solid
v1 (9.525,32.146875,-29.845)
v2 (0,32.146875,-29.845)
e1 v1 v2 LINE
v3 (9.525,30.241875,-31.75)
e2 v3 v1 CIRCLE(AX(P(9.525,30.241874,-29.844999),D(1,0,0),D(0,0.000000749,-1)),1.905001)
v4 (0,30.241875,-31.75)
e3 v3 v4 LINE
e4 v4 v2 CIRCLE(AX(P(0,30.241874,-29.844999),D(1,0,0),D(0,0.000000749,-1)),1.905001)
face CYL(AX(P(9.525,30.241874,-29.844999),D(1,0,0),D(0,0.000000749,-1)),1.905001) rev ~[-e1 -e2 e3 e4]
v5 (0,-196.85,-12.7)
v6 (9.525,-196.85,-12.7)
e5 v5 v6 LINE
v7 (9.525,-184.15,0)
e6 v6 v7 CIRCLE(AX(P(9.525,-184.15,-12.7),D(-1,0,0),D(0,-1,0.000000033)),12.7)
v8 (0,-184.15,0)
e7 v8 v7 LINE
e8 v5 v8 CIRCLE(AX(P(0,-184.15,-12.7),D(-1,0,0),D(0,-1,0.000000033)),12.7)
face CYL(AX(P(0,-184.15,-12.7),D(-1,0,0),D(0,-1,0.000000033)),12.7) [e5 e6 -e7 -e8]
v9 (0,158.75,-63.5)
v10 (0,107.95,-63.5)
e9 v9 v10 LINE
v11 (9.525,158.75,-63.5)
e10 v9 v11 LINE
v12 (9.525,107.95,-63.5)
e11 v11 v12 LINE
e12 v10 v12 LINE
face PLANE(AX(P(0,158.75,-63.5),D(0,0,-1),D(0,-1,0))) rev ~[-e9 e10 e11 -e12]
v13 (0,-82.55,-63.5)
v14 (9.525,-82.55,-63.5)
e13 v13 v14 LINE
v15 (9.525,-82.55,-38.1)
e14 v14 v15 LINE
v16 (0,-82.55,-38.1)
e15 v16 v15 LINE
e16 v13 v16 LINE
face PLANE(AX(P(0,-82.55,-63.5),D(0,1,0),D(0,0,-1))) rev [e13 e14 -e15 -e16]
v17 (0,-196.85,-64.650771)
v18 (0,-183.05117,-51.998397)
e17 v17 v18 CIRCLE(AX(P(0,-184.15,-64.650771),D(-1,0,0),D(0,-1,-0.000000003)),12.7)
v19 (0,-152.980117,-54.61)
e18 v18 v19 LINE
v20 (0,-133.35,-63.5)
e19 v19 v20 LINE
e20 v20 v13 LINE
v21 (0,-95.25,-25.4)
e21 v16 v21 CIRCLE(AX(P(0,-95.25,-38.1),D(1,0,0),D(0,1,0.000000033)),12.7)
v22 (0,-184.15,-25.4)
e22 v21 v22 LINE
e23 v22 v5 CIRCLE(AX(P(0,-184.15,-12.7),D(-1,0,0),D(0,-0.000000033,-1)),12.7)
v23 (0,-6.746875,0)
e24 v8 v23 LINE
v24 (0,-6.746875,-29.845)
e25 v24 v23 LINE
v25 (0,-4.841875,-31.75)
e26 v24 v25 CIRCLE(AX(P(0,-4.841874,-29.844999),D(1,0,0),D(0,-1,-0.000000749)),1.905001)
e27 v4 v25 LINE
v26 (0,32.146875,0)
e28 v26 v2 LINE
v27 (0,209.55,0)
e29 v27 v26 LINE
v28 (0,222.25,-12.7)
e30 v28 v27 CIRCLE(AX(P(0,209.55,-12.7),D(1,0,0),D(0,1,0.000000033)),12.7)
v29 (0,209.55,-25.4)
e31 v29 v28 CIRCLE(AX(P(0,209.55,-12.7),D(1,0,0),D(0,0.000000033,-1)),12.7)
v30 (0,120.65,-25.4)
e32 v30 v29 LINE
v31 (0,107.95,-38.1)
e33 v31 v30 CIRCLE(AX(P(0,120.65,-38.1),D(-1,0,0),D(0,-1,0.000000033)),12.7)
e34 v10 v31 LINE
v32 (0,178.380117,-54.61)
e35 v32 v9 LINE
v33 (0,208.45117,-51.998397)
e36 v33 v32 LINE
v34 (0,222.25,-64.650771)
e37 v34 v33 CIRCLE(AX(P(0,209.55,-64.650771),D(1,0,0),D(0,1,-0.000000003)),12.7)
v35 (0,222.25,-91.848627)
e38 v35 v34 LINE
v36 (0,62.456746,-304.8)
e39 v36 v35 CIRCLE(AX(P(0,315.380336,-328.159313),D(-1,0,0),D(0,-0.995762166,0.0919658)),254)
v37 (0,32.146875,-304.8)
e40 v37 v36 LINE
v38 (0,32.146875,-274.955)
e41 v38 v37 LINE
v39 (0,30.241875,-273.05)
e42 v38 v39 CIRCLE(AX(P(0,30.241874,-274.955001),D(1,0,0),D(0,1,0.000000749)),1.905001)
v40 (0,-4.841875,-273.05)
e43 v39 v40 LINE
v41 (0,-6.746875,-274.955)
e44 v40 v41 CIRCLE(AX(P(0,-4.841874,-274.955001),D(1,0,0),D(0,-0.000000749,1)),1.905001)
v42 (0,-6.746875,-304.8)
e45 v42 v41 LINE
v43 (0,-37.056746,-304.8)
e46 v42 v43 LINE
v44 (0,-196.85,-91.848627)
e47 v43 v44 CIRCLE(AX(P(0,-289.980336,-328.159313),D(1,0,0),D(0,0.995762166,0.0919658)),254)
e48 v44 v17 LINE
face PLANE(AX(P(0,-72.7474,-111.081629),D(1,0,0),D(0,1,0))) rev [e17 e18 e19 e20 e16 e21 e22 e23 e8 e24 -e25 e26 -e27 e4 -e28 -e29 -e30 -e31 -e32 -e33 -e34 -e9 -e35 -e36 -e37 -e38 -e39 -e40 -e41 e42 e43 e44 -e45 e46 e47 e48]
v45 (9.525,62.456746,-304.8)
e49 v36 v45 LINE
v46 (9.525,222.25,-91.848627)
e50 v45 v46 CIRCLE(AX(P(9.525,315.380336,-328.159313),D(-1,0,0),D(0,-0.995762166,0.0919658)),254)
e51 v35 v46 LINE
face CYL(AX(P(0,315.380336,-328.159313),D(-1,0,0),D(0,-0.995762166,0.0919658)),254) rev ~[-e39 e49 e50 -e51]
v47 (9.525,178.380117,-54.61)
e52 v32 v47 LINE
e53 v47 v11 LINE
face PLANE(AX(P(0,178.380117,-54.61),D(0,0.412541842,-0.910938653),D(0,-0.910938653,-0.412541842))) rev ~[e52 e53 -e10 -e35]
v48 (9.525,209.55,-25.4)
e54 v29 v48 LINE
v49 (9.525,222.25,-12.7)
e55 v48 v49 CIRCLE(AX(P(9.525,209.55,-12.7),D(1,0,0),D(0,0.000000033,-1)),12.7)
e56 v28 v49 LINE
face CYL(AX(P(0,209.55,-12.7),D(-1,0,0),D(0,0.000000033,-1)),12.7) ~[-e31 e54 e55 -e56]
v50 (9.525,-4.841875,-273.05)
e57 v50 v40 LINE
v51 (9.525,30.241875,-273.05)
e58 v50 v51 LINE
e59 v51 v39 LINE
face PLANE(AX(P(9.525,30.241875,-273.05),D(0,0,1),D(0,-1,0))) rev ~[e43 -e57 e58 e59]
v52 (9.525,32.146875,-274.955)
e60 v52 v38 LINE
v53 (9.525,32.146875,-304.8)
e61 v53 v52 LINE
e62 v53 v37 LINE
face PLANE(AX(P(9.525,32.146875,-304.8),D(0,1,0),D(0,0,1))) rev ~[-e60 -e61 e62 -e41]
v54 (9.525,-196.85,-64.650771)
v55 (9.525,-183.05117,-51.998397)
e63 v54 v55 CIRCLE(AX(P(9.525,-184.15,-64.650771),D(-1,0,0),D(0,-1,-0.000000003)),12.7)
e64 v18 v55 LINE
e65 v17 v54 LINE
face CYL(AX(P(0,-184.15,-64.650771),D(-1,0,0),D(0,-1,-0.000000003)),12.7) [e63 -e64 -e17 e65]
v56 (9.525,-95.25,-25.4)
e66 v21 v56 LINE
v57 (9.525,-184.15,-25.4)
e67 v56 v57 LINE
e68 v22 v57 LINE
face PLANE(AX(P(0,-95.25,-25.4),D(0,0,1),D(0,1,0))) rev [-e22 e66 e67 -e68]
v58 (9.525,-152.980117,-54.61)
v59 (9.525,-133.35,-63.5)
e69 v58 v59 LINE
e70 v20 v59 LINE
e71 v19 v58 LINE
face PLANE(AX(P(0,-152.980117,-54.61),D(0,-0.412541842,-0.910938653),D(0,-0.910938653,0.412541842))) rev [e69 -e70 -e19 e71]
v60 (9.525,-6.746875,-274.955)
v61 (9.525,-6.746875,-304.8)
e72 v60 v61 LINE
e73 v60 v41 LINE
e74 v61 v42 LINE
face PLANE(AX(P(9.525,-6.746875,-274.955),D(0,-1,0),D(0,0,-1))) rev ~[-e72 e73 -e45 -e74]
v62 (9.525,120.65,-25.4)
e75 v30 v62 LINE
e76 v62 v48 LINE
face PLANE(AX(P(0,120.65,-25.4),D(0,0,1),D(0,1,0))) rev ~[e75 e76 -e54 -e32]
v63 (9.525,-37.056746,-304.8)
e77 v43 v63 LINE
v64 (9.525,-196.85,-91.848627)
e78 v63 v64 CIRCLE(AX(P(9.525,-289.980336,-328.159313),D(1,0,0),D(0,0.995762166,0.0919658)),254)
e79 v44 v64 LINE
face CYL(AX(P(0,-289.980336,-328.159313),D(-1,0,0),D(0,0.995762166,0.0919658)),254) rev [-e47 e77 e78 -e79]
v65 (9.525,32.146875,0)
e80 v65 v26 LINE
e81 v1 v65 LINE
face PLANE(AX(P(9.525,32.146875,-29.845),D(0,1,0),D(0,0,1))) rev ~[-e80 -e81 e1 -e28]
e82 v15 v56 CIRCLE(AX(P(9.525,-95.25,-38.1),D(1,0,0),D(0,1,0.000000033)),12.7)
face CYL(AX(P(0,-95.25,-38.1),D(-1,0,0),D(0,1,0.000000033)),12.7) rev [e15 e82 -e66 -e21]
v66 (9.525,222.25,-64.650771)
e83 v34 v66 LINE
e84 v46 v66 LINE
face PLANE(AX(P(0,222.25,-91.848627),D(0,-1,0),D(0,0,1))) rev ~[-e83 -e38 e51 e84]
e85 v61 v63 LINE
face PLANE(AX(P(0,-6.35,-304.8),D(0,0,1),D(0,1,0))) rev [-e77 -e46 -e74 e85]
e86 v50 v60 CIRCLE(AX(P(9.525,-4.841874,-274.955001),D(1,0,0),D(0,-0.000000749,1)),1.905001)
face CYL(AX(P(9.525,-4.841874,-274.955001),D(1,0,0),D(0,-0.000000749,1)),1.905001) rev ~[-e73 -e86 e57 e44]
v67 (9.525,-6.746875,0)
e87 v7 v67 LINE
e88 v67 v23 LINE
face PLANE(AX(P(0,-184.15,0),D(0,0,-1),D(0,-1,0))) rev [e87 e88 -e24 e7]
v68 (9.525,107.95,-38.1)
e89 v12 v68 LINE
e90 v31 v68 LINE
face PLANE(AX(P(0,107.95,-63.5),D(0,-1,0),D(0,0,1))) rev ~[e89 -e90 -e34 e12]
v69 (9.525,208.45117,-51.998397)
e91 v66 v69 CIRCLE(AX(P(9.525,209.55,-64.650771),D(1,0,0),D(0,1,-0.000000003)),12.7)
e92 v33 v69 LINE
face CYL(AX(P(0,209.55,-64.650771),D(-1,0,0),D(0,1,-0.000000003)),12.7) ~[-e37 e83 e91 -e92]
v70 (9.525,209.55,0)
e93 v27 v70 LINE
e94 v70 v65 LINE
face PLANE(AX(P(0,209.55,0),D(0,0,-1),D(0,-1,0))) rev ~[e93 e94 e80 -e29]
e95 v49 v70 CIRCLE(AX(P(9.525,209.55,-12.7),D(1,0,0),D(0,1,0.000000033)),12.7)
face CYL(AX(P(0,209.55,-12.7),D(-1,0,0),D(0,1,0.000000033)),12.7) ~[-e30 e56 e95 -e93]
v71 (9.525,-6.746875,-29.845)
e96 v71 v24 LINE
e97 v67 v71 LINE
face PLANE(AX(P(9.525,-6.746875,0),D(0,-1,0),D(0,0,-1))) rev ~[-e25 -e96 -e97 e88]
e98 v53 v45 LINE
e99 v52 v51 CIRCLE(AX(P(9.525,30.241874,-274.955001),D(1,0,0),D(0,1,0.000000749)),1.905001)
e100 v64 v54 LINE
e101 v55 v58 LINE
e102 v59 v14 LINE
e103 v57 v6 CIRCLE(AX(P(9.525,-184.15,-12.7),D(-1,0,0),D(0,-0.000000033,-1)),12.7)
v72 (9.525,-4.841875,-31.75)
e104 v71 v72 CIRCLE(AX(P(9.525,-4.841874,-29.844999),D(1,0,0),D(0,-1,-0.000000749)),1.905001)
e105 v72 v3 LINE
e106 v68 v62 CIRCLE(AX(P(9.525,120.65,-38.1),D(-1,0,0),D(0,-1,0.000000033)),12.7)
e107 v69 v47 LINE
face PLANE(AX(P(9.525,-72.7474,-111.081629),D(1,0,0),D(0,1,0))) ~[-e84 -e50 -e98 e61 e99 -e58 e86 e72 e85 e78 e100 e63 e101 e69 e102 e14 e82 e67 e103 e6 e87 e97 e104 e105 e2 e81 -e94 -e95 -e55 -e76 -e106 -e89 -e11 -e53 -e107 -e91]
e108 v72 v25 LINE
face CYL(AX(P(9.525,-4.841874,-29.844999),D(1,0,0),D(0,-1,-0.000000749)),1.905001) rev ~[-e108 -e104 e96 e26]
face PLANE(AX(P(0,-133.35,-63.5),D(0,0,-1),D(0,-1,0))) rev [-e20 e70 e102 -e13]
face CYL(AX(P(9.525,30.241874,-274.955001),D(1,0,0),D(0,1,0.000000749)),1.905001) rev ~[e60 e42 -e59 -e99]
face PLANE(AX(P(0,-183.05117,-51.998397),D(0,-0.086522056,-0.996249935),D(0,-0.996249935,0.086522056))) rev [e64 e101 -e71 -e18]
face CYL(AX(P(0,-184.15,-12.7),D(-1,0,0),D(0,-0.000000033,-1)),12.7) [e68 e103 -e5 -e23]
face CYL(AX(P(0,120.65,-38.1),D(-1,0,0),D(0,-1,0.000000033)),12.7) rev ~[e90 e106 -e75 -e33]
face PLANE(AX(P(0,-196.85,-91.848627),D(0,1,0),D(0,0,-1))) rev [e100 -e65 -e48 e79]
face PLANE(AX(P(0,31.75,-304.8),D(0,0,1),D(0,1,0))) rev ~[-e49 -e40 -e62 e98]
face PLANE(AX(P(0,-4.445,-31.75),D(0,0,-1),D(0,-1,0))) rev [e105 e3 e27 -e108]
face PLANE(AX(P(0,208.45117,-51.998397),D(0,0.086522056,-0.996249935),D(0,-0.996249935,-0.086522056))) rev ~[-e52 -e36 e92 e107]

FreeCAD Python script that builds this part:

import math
import FreeCAD as App
import Part
import Sketcher
from FreeCAD import Vector
Q = App.Units.Quantity

doc = App.newDocument("Part")
body = doc.addObject("PartDesign::Body", "Body")

# Sketch on YZ plane
sketch1 = doc.addObject("Sketcher::SketchObject", "Sketch")
body.addObject(sketch1)
sketch1.AttachmentSupport = (doc.YZ_Plane, [""])
sketch1.MapMode = "FlatFace"
sketch1.addGeometry([
    Part.LineSegment(Vector(29.845, -31.75, 0), Vector(0, -31.75, 0)),  # 0
    Part.LineSegment(Vector(0, -31.75, 0), Vector(0, -273.05, 0)),  # 1
    Part.LineSegment(Vector(0, -273.05, 0), Vector(29.845, -273.05, 0)),  # 2
    Part.ArcOfCircle(Part.Circle(Vector(29.844999, -274.955001, 0), Vector(0, 0, 1), 1.905001), math.radians(0.000043), math.radians(89.999957)),  # 3
    Part.LineSegment(Vector(31.75, -274.955, 0), Vector(31.75, -304.8, 0)),  # 4
    Part.LineSegment(Vector(31.75, -304.8, 0), Vector(62.456746, -304.8, 0)),  # 5
    Part.ArcOfCircle(Part.Circle(Vector(315.380336, -328.159313, 0), Vector(0, 0, 1), 254), math.radians(111.509462), math.radians(174.723292)),  # 6
    Part.LineSegment(Vector(222.25, -91.848627, 0), Vector(222.25, -64.650771, 0)),  # 7
    Part.ArcOfCircle(Part.Circle(Vector(209.55, -64.650771, 0), Vector(0, 0, 1), 12.7), math.radians(0), math.radians(94.963555)),  # 8
    Part.LineSegment(Vector(208.45117, -51.998397, 0), Vector(178.380117, -54.61, 0)),  # 9
    Part.LineSegment(Vector(178.380117, -54.61, 0), Vector(158.75, -63.5, 0)),  # 10
    Part.LineSegment(Vector(158.75, -63.5, 0), Vector(107.95, -63.5, 0)),  # 11
    Part.LineSegment(Vector(107.95, -63.5, 0), Vector(107.95, -38.1, 0)),  # 12
    Part.ArcOfCircle(Part.Circle(Vector(120.65, -38.1, 0), Vector(0, 0, 1), 12.7), math.radians(90.000002), math.radians(179.999998)),  # 13
    Part.LineSegment(Vector(120.65, -25.4, 0), Vector(209.55, -25.4, 0)),  # 14
    Part.ArcOfCircle(Part.Circle(Vector(209.55, -12.7, 0), Vector(0, 0, 1), 12.7), math.radians(-89.999998), math.radians(-0.000002)),  # 15
    Part.ArcOfCircle(Part.Circle(Vector(209.55, -12.7, 0), Vector(0, 0, 1), 12.7), math.radians(0.000002), math.radians(89.999998)),  # 16
    Part.LineSegment(Vector(209.55, 0, 0), Vector(31.75, 0, 0)),  # 17
    Part.LineSegment(Vector(31.75, 0, 0), Vector(31.75, -29.845, 0)),  # 18
    Part.ArcOfCircle(Part.Circle(Vector(29.844999, -29.844999, 0), Vector(0, 0, 1), 1.905001), math.radians(-89.999957), math.radians(-0.000043)),  # 19
], False)
sketch1.addConstraint([
    Sketcher.Constraint("Coincident", 0, 2, 1, 1),
    Sketcher.Constraint("Coincident", 1, 2, 2, 1),
    Sketcher.Constraint("Tangent", 2, 2, 3, 2),
    Sketcher.Constraint("Tangent", 3, 1, 4, 1),
    Sketcher.Constraint("Coincident", 4, 2, 5, 1),
    Sketcher.Constraint("Coincident", 5, 2, 6, 2),
    Sketcher.Constraint("Coincident", 6, 1, 7, 1),
    Sketcher.Constraint("Tangent", 7, 2, 8, 1),
    Sketcher.Constraint("Tangent", 8, 2, 9, 1),
    Sketcher.Constraint("Coincident", 9, 2, 10, 1),
    Sketcher.Constraint("Coincident", 10, 2, 11, 1),
    Sketcher.Constraint("Coincident", 11, 2, 12, 1),
    Sketcher.Constraint("Tangent", 12, 2, 13, 2),
    Sketcher.Constraint("Tangent", 13, 1, 14, 1),
    Sketcher.Constraint("Tangent", 14, 2, 15, 1),
    Sketcher.Constraint("Tangent", 15, 2, 16, 1),
    Sketcher.Constraint("Tangent", 16, 2, 17, 1),
    Sketcher.Constraint("Coincident", 17, 2, 18, 1),
    Sketcher.Constraint("Tangent", 18, 2, 19, 2),
    Sketcher.Constraint("Tangent", 19, 1, 0, 1),
    Sketcher.Constraint("Horizontal", 0),
    Sketcher.Constraint("Vertical", 1),
    Sketcher.Constraint("Horizontal", 2),
    Sketcher.Constraint("Vertical", 4),
    Sketcher.Constraint("Horizontal", 5),
    Sketcher.Constraint("Vertical", 7),
    Sketcher.Constraint("Horizontal", 11),
    Sketcher.Constraint("Vertical", 12),
    Sketcher.Constraint("Horizontal", 14),
    Sketcher.Constraint("Horizontal", 17),
    Sketcher.Constraint("Vertical", 18),
    Sketcher.Constraint("Equal", 8, 13),
    Sketcher.Constraint("Equal", 13, 15),
    Sketcher.Constraint("Equal", 15, 16),
    Sketcher.Constraint("Equal", 3, 19),
    Sketcher.Constraint("PointOnObject", 0, 2, -2),
    Sketcher.Constraint("PointOnObject", 16, 2, -1),
    Sketcher.Constraint("Horizontal", 16, 3, 15, 2),
    Sketcher.Constraint("Vertical", 8, 3, 15, 3),
    Sketcher.Constraint("Vertical", 3, 3, 19, 3),
    Sketcher.Constraint("Equal", 2, 4),
    Sketcher.Constraint("Equal", 4, 18),
    Sketcher.Constraint("Radius", 6, Q("10 in")),
    Sketcher.Constraint("Radius", 8, Q("0.5 in")),
    Sketcher.Constraint("DistanceX", 11, 2, 11, 1, Q("2 in")),
    Sketcher.Constraint("DistanceX", 17, 2, 17, 1, Q("7 in")),
    Sketcher.Constraint("DistanceY", 12, 1, 12, 2, Q("1 in")),
    Sketcher.Constraint("DistanceX", 14, 1, 14, 2, Q("3.5 in")),
    Sketcher.Constraint("DistanceY", 1, 2, 1, 1, Q("9.5 in")),
    Sketcher.Constraint("DistanceY", 4, 2, -1, 1, Q("12 in")),
    Sketcher.Constraint("Radius", 3, Q("0.0750001 in")),
    Sketcher.Constraint("DistanceY", 9, 2, -1, 1, Q("2.15 in")),
    Sketcher.Constraint("Distance", 10, 21.549329),
    Sketcher.Constraint("DistanceX", 5, 1, 5, 2, 30.706746),
    Sketcher.Constraint("DistanceY", 7, 1, 7, 2, 27.197856),
    Sketcher.Constraint("DistanceY", 8, 3, -1, 1, 64.650771),
])
pad1 = doc.addObject("PartDesign::Pad", "Pad")
body.addObject(pad1)
pad1.Profile = sketch1
pad1.Length = Q("0.375 in")

# Sketch on YZ plane
sketch2 = doc.addObject("Sketcher::SketchObject", "Sketch001")
body.addObject(sketch2)
sketch2.AttachmentSupport = (doc.YZ_Plane, [""])
sketch2.MapMode = "FlatFace"
sketch2.AttachmentOffset = App.Placement(Vector(0, 0, 0.375 * 25.4), App.Rotation())
sketch2.addGeometry([
    Part.LineSegment(Vector(0, -31.75, 0), Vector(0, -273.05, 0)),
    Part.LineSegment(Vector(0, -273.05, 0), Vector(12.7, -273.05, 0)),
    Part.LineSegment(Vector(12.7, -273.05, 0), Vector(12.7, -31.75, 0)),
    Part.LineSegment(Vector(12.7, -31.75, 0), Vector(0, -31.75, 0)),
], False)
sketch2.addConstraint([
    Sketcher.Constraint("Coincident", 0, 2, 1, 1),
    Sketcher.Constraint("Coincident", 1, 2, 2, 1),
    Sketcher.Constraint("Coincident", 2, 2, 3, 1),
    Sketcher.Constraint("Coincident", 3, 2, 0, 1),
    Sketcher.Constraint("Vertical", 0),
    Sketcher.Constraint("Horizontal", 1),
    Sketcher.Constraint("Vertical", 2),
    Sketcher.Constraint("Horizontal", 3),
    Sketcher.Constraint("PointOnObject", 0, 2, -2),
    Sketcher.Constraint("DistanceX", 1, 1, 1, 2, Q("0.5 in")),
    Sketcher.Constraint("DistanceY", 0, 2, 0, 1, Q("9.5 in")),
    Sketcher.Constraint("DistanceY", 0, 2, -1, 1, Q("10.75 in")),
])
pocket1 = doc.addObject("PartDesign::Pocket", "Pocket")
body.addObject(pocket1)
pocket1.Profile = sketch2
pocket1.Length = Q("1 in")
body2 = doc.addObject("PartDesign::Body", "Body001")
doc.recompute()

body2.BaseFeature = body
doc.recompute()

mirroring = doc.addObject("Part::Mirroring", "Mirroring")
mirroring.Source = body
mirroring.Base = Vector(4.7625, 12.7, -152.4)
mirroring.Normal = Vector(0, -1, 0)
body3 = doc.addObject("PartDesign::Body", "Body002")
body3.BaseFeature = mirroring
boolean = doc.addObject("PartDesign::Boolean", "Boolean")
body2.addObject(boolean)
boolean.Type = "Fuse"
boolean.addObjects([body3])
doc.recompute()

# Sketch on YZ plane
sketch3 = doc.addObject("Sketcher::SketchObject", "Sketch002")
body2.addObject(sketch3)
sketch3.AttachmentSupport = (doc.getObject("YZ_Plane001"), [""])
sketch3.MapMode = "FlatFace"
sketch3.AttachmentOffset = App.Placement(Vector(0, 0, 0.375 * 25.4), App.Rotation())
sketch3.addGeometry([
    Part.LineSegment(Vector(32.146875, 0, 0), Vector(-6.746875, 0, 0)),  # 0
    Part.LineSegment(Vector(-6.746875, 0, 0), Vector(-6.746875, -29.845, 0)),  # 1
    Part.ArcOfCircle(Part.Circle(Vector(-4.841874, -29.844999, 0), Vector(0, 0, 1), 1.905001), math.radians(-179.999957), math.radians(-90.000043)),  # 2
    Part.LineSegment(Vector(-4.841875, -31.75, 0), Vector(30.241875, -31.75, 0)),  # 3
    Part.ArcOfCircle(Part.Circle(Vector(30.241874, -29.844999, 0), Vector(0, 0, 1), 1.905001), math.radians(-89.999957), math.radians(-0.000043)),  # 4
    Part.LineSegment(Vector(32.146875, -29.845, 0), Vector(32.146875, 0, 0)),  # 5
    Part.LineSegment(Vector(-6.746875, -274.955, 0), Vector(-6.746875, -304.8, 0)),  # 6
    Part.LineSegment(Vector(-6.746875, -304.8, 0), Vector(32.146875, -304.8, 0)),  # 7
    Part.LineSegment(Vector(32.146875, -304.8, 0), Vector(32.146875, -274.955, 0)),  # 8
    Part.ArcOfCircle(Part.Circle(Vector(30.241874, -274.955001, 0), Vector(0, 0, 1), 1.905001), math.radians(0.000043), math.radians(89.999957)),  # 9
    Part.LineSegment(Vector(30.241875, -273.05, 0), Vector(-4.841875, -273.05, 0)),  # 10
    Part.ArcOfCircle(Part.Circle(Vector(-4.841874, -274.955001, 0), Vector(0, 0, 1), 1.905001), math.radians(90.000043), math.radians(179.999957)),  # 11
], False)
sketch3.addConstraint([
    Sketcher.Constraint("Coincident", 0, 2, 1, 1),
    Sketcher.Constraint("Tangent", 1, 2, 2, 1),
    Sketcher.Constraint("Tangent", 2, 2, 3, 1),
    Sketcher.Constraint("Tangent", 3, 2, 4, 1),
    Sketcher.Constraint("Tangent", 4, 2, 5, 1),
    Sketcher.Constraint("Coincident", 5, 2, 0, 1),
    Sketcher.Constraint("Coincident", 6, 2, 7, 1),
    Sketcher.Constraint("Coincident", 7, 2, 8, 1),
    Sketcher.Constraint("Tangent", 8, 2, 9, 1),
    Sketcher.Constraint("Tangent", 9, 2, 10, 1),
    Sketcher.Constraint("Tangent", 10, 2, 11, 1),
    Sketcher.Constraint("Tangent", 11, 2, 6, 1),
    Sketcher.Constraint("Horizontal", 0),
    Sketcher.Constraint("Vertical", 1),
    Sketcher.Constraint("Horizontal", 3),
    Sketcher.Constraint("Vertical", 5),
    Sketcher.Constraint("Vertical", 6),
    Sketcher.Constraint("Horizontal", 7),
    Sketcher.Constraint("Vertical", 8),
    Sketcher.Constraint("Horizontal", 10),
    Sketcher.Constraint("Equal", 2, 4),
    Sketcher.Constraint("Equal", 4, 9),
    Sketcher.Constraint("Equal", 9, 11),
    Sketcher.Constraint("PointOnObject", 0, 2, -1),
    Sketcher.Constraint("Vertical", 4, 3, 9, 3),
    Sketcher.Constraint("Vertical", 2, 3, 11, 3),
    Sketcher.Constraint("Equal", 5, 6),
    Sketcher.Constraint("DistanceY", 6, 2, -1, 1, Q("12 in")),
    Sketcher.Constraint("Radius", 2, Q("0.0750001 in")),
    Sketcher.Constraint("DistanceX", 0, 2, 0, 1, Q("1.53125 in")),
    Sketcher.Constraint("DistanceY", 1, 2, 1, 1, Q("1.175 in")),
    Sketcher.Constraint("DistanceX", 0, 2, -1, 1, Q("0.265625 in")),
])
pocket2 = doc.addObject("PartDesign::Pocket", "Pocket001")
body2.addObject(pocket2)
pocket2.Profile = sketch3
pocket2.Length = Q("1 in")
mirroring.Visibility = False

doc.recompute()
